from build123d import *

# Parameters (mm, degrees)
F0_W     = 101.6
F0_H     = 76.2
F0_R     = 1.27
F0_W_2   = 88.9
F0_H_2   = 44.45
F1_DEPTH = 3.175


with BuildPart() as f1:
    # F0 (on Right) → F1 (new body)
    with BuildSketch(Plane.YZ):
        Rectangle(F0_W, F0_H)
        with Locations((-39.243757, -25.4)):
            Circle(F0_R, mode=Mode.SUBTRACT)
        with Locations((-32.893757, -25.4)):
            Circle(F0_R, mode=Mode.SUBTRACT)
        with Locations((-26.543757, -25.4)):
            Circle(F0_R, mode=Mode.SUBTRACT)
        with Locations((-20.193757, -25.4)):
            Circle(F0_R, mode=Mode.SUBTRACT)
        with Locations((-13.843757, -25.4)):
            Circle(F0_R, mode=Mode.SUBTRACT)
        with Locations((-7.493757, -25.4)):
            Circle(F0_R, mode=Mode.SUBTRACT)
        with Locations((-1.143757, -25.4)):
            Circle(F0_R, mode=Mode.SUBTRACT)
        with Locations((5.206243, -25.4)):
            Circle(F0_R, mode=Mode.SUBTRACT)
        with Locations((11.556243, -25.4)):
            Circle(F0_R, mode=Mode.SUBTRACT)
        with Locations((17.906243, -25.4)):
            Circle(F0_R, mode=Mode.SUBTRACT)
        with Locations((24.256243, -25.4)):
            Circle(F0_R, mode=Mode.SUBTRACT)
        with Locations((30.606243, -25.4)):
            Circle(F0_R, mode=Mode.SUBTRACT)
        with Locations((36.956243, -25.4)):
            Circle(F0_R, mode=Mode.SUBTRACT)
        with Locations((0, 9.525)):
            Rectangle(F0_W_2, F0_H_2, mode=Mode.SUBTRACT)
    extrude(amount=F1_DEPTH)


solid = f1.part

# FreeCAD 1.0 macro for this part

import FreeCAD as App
import Part
import Sketcher

V = App.Vector
Q = App.Units.Quantity


def add_polygon(sketch, points):
    """Adds a closed chain of lines whose ends are joined by coincident constraints."""
    first, n = sketch.GeometryCount, len(points)
    for a, b in zip(points, points[1:] + points[:1]):
        sketch.addGeometry(Part.LineSegment(App.Vector(*a, 0), App.Vector(*b, 0)), False)
    for i in range(n):
        sketch.addConstraint(Sketcher.Constraint("Coincident", first + i, 2, first + (i + 1) % n, 1))

doc = App.newDocument("Part")
params = doc.addObject("Spreadsheet::Sheet", "Params")
for row, (alias, value) in enumerate([
    ("sketch1_diameter", "0.1 in"),
    ("sketch1_width", "4 in"),
    ("sketch1_height", "3 in"),
    ("sketch1_width2", "3.5 in"),
    ("sketch1_height2", "1.75 in"),
    ("pad1_length", "0.125 in"),
], start=1):
    params.set(f"A{row}", alias)
    params.set(f"B{row}", "=" + value)
    params.setAlias(f"B{row}", alias)

body = doc.addObject("PartDesign::Body", "Body")

# Sketch on YZ plane
sketch1 = doc.addObject("Sketcher::SketchObject", "Sketch")
body.addObject(sketch1)
sketch1.AttachmentSupport = (doc.YZ_Plane, [""])
sketch1.MapMode = "FlatFace"
add_polygon(sketch1, [(-50.8, 38.1), (-50.8, -38.1), (50.8, -38.1), (50.8, 38.1)])  # lines 0-3
sketch1.addGeometry(Part.Circle(V(-39.2, -25.4, 0), V(0, 0, 1), 1.3), False)  # 4
sketch1.addGeometry(Part.Circle(V(-32.9, -25.4, 0), V(0, 0, 1), 1.3), False)  # 5
sketch1.addGeometry(Part.Circle(V(-26.5, -25.4, 0), V(0, 0, 1), 1.3), False)  # 6
sketch1.addGeometry(Part.Circle(V(-20.2, -25.4, 0), V(0, 0, 1), 1.3), False)  # 7
sketch1.addGeometry(Part.Circle(V(-13.8, -25.4, 0), V(0, 0, 1), 1.3), False)  # 8
sketch1.addGeometry(Part.Circle(V(-7.5, -25.4, 0), V(0, 0, 1), 1.3), False)  # 9
sketch1.addGeometry(Part.Circle(V(-1.1, -25.4, 0), V(0, 0, 1), 1.3), False)  # 10
sketch1.addGeometry(Part.Circle(V(5.2, -25.4, 0), V(0, 0, 1), 1.3), False)  # 11
sketch1.addGeometry(Part.Circle(V(11.6, -25.4, 0), V(0, 0, 1), 1.3), False)  # 12
sketch1.addGeometry(Part.Circle(V(17.9, -25.4, 0), V(0, 0, 1), 1.3), False)  # 13
sketch1.addGeometry(Part.Circle(V(24.3, -25.4, 0), V(0, 0, 1), 1.3), False)  # 14
sketch1.addGeometry(Part.Circle(V(30.6, -25.4, 0), V(0, 0, 1), 1.3), False)  # 15
sketch1.addGeometry(Part.Circle(V(37, -25.4, 0), V(0, 0, 1), 1.3), False)  # 16
add_polygon(sketch1, [(44.5, -12.7), (-44.5, -12.7), (-44.5, 31.8), (44.5, 31.8)])  # lines 17-20
sketch1.addConstraint(Sketcher.Constraint("Vertical", 0))
sketch1.addConstraint(Sketcher.Constraint("Horizontal", 1))
sketch1.addConstraint(Sketcher.Constraint("Vertical", 2))
sketch1.addConstraint(Sketcher.Constraint("Horizontal", 3))
sketch1.addConstraint(Sketcher.Constraint("Horizontal", 17))
sketch1.addConstraint(Sketcher.Constraint("Vertical", 18))
sketch1.addConstraint(Sketcher.Constraint("Horizontal", 19))
sketch1.addConstraint(Sketcher.Constraint("Vertical", 20))
sketch1.addConstraint(Sketcher.Constraint("Equal", 4, 5))
sketch1.addConstraint(Sketcher.Constraint("Equal", 5, 6))
sketch1.addConstraint(Sketcher.Constraint("Equal", 6, 7))
sketch1.addConstraint(Sketcher.Constraint("Equal", 7, 8))
sketch1.addConstraint(Sketcher.Constraint("Equal", 8, 9))
sketch1.addConstraint(Sketcher.Constraint("Equal", 9, 10))
sketch1.addConstraint(Sketcher.Constraint("Equal", 10, 11))
sketch1.addConstraint(Sketcher.Constraint("Equal", 11, 12))
sketch1.addConstraint(Sketcher.Constraint("Equal", 12, 13))
sketch1.addConstraint(Sketcher.Constraint("Equal", 13, 14))
sketch1.addConstraint(Sketcher.Constraint("Equal", 14, 15))
sketch1.addConstraint(Sketcher.Constraint("Equal", 15, 16))
sketch1.addConstraint(Sketcher.Constraint("Symmetric", 0, 2, 2, 2, -1, 1))
sketch1.addConstraint(Sketcher.Constraint("Horizontal", 4, 3, 5, 3))
sketch1.addConstraint(Sketcher.Constraint("Horizontal", 5, 3, 6, 3))
sketch1.addConstraint(Sketcher.Constraint("Horizontal", 6, 3, 7, 3))
sketch1.addConstraint(Sketcher.Constraint("Horizontal", 7, 3, 8, 3))
sketch1.addConstraint(Sketcher.Constraint("Horizontal", 8, 3, 9, 3))
sketch1.addConstraint(Sketcher.Constraint("Horizontal", 9, 3, 10, 3))
sketch1.addConstraint(Sketcher.Constraint("Horizontal", 10, 3, 11, 3))
sketch1.addConstraint(Sketcher.Constraint("Horizontal", 11, 3, 12, 3))
sketch1.addConstraint(Sketcher.Constraint("Horizontal", 12, 3, 13, 3))
sketch1.addConstraint(Sketcher.Constraint("Horizontal", 13, 3, 14, 3))
sketch1.addConstraint(Sketcher.Constraint("Horizontal", 14, 3, 15, 3))
sketch1.addConstraint(Sketcher.Constraint("Horizontal", 15, 3, 16, 3))
sketch1.addConstraint(Sketcher.Constraint("Diameter", 4, Q("0.1 in")))
sketch1.addConstraint(Sketcher.Constraint("DistanceX", 1, 1, 1, 2, Q("4 in")))
sketch1.addConstraint(Sketcher.Constraint("DistanceY", 0, 2, 0, 1, Q("3 in")))
sketch1.addConstraint(Sketcher.Constraint("DistanceX", 17, 2, 17, 1, Q("3.5 in")))
sketch1.addConstraint(Sketcher.Constraint("DistanceY", 4, 3, -1, 1, Q("1 in")))
sketch1.addConstraint(Sketcher.Constraint("DistanceX", 4, 3, 8, 3, Q("1 in")))
sketch1.addConstraint(Sketcher.Constraint("DistanceX", 5, 3, 9, 3, Q("1 in")))
sketch1.addConstraint(Sketcher.Constraint("DistanceX", 6, 3, 10, 3, Q("1 in")))
sketch1.addConstraint(Sketcher.Constraint("DistanceX", 7, 3, 11, 3, Q("1 in")))
sketch1.addConstraint(Sketcher.Constraint("DistanceX", 8, 3, 12, 3, Q("1 in")))
sketch1.addConstraint(Sketcher.Constraint("DistanceX", 9, 3, 13, 3, Q("1 in")))
sketch1.addConstraint(Sketcher.Constraint("DistanceX", 10, 3, 14, 3, Q("1 in")))
sketch1.addConstraint(Sketcher.Constraint("DistanceX", 11, 3, 15, 3, Q("1 in")))
sketch1.addConstraint(Sketcher.Constraint("DistanceX", 12, 3, 16, 3, Q("1 in")))
sketch1.addConstraint(Sketcher.Constraint("DistanceY", 0, 2, 17, 2, Q("1 in")))
sketch1.addConstraint(Sketcher.Constraint("DistanceY", 18, 1, 18, 2, Q("1.75 in")))
sketch1.addConstraint(Sketcher.Constraint("DistanceX", 4, 3, 6, 3, Q("0.5 in")))
sketch1.addConstraint(Sketcher.Constraint("DistanceX", 5, 3, 7, 3, Q("0.5 in")))
sketch1.addConstraint(Sketcher.Constraint("DistanceX", 17, 2, -1, 1, Q("1.75 in")))
sketch1.addConstraint(Sketcher.Constraint("DistanceX", 4, 3, 5, 3, Q("0.25 in")))
sketch1.addConstraint(Sketcher.Constraint("DistanceX", 4, 3, -1, 1, 39.243757))
sketch1.setExpression("Constraints[41]", "Params.sketch1_diameter")
sketch1.setExpression("Constraints[42]", "Params.sketch1_width")
sketch1.setExpression("Constraints[43]", "Params.sketch1_height")
sketch1.setExpression("Constraints[44]", "Params.sketch1_width2")
sketch1.setExpression("Constraints[56]", "Params.sketch1_height2")
pad1 = doc.addObject("PartDesign::Pad", "Pad")
body.addObject(pad1)
pad1.Profile = sketch1
pad1.setExpression("Length", "Params.pad1_length")

doc.recompute()
